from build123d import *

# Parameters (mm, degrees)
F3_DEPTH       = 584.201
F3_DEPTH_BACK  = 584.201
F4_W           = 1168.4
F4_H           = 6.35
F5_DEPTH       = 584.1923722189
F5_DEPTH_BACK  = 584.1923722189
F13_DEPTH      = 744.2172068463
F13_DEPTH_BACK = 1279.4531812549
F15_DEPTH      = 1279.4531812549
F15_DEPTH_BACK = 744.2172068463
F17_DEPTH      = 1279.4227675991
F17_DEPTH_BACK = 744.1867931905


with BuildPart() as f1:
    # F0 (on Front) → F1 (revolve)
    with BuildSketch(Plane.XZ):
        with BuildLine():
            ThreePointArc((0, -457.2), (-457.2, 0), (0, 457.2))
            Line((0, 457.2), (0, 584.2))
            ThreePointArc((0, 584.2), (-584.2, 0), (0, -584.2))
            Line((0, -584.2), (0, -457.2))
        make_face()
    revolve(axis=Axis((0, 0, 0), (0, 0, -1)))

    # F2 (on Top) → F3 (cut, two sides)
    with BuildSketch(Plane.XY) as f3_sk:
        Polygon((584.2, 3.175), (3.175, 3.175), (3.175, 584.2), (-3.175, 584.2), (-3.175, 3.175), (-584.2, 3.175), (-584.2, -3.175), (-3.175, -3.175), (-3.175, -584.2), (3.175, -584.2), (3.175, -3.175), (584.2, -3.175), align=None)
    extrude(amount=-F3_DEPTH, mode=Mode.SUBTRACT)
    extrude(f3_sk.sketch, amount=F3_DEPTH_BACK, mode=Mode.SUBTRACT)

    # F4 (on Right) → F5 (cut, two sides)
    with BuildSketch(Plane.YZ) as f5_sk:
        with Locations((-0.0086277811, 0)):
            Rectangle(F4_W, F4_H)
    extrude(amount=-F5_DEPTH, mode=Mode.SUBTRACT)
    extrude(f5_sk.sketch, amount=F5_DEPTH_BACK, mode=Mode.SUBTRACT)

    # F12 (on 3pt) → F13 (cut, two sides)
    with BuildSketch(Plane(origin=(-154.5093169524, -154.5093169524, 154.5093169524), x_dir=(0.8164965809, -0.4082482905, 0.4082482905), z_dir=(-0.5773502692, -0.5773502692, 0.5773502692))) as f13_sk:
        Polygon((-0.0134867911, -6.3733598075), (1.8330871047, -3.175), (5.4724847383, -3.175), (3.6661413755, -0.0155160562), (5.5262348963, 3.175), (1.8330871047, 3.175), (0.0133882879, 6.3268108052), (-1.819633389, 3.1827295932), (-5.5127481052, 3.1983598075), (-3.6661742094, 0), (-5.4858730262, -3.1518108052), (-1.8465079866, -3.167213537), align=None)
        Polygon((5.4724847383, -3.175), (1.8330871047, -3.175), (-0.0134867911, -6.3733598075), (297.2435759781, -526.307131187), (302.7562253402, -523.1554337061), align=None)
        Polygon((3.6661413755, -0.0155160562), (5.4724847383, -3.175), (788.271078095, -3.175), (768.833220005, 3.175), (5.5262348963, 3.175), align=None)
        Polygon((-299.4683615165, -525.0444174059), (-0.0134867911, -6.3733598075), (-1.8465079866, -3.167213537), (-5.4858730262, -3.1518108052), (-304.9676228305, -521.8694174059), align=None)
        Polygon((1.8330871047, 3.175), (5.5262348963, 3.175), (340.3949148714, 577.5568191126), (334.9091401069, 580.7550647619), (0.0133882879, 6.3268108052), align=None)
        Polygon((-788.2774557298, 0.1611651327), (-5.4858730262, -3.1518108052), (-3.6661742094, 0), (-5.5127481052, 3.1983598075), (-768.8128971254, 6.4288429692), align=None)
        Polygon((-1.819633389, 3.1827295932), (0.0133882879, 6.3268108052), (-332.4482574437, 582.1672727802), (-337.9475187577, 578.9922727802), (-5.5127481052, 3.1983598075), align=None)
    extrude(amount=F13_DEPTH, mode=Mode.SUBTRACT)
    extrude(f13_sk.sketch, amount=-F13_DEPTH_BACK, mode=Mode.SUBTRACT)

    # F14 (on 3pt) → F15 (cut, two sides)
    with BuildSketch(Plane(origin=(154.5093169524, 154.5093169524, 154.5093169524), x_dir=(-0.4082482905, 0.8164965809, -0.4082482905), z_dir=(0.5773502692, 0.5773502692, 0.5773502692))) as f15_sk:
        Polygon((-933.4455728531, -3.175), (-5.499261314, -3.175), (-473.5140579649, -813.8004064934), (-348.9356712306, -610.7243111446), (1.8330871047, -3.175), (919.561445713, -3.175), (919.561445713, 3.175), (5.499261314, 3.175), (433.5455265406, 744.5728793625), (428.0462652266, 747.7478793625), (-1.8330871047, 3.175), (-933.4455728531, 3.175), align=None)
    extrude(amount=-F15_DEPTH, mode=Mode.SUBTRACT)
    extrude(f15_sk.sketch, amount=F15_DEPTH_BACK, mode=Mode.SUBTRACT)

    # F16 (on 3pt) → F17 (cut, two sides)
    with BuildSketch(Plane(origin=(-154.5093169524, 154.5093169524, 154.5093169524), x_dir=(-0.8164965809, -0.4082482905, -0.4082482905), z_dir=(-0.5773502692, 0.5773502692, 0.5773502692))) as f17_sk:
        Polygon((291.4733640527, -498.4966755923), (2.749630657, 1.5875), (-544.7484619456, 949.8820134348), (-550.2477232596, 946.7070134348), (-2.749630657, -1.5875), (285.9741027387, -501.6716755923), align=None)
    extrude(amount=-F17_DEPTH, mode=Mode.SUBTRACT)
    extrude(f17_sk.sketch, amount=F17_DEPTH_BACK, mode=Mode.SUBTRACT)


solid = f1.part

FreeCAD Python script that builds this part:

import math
import FreeCAD as App
import Part
import Sketcher
Q = App.Units.Quantity

doc = App.newDocument("Part")
body = doc.addObject("PartDesign::Body", "Body")
body.AllowCompound = True

# Sketch on XZ plane
sketch1 = body.newObject("Sketcher::SketchObject", "Sketch")
sketch1.AttachmentSupport = (doc.getObject("XZ_Plane"), [""])
sketch1.MapMode = "FlatFace"
sketch1.addGeometry(Part.ArcOfCircle(Part.Circle(App.Vector(0, 0, 0), App.Vector(0, 0, 1), 457), math.radians(90), math.radians(270)), False)
sketch1.addGeometry(Part.LineSegment(App.Vector(0, 457, 0), App.Vector(0, 584, 0)), False)
sketch1.addGeometry(Part.ArcOfCircle(Part.Circle(App.Vector(0, 0, 0), App.Vector(0, 0, 1), 584), math.radians(90), math.radians(270)), False)
sketch1.addGeometry(Part.LineSegment(App.Vector(0, -584, 0), App.Vector(0, -457, 0)), False)
sketch1.addConstraint(Sketcher.Constraint("Coincident", 0, 1, 1, 1))
sketch1.addConstraint(Sketcher.Constraint("Coincident", 1, 2, 2, 1))
sketch1.addConstraint(Sketcher.Constraint("Coincident", 2, 2, 3, 1))
sketch1.addConstraint(Sketcher.Constraint("Coincident", 3, 2, 0, 2))
sketch1.addConstraint(Sketcher.Constraint("Vertical", 1))
sketch1.addConstraint(Sketcher.Constraint("Vertical", 3))
sketch1.addConstraint(Sketcher.Constraint("Coincident", 0, 3, -1, 1))
sketch1.addConstraint(Sketcher.Constraint("Coincident", 2, 3, -1, 1))
sketch1.addConstraint(Sketcher.Constraint("PointOnObject", 1, 2, -2))
sketch1.addConstraint(Sketcher.Constraint("PointOnObject", 3, 2, -2))
sketch1.addConstraint(Sketcher.Constraint("Radius", 0, Q("18 in")))
sketch1.addConstraint(Sketcher.Constraint("Radius", 2, Q("23 in")))
revolution = body.newObject("PartDesign::Revolution", "Revolution")
revolution.Profile = sketch1
revolution.ReferenceAxis = (sketch1, ["V_Axis"])
revolution.Angle = 360

# Sketch on XY plane
sketch2 = body.newObject("Sketcher::SketchObject", "Sketch001")
sketch2.AttachmentSupport = (doc.getObject("XY_Plane"), [""])
sketch2.MapMode = "FlatFace"
sketch2.addGeometry(Part.LineSegment(App.Vector(584, 3, 0), App.Vector(3, 3, 0)), False)
sketch2.addGeometry(Part.LineSegment(App.Vector(3, 3, 0), App.Vector(3, 584, 0)), False)
sketch2.addGeometry(Part.LineSegment(App.Vector(3, 584, 0), App.Vector(-3, 584, 0)), False)
sketch2.addGeometry(Part.LineSegment(App.Vector(-3, 584, 0), App.Vector(-3, 3, 0)), False)
sketch2.addGeometry(Part.LineSegment(App.Vector(-3, 3, 0), App.Vector(-584, 3, 0)), False)
sketch2.addGeometry(Part.LineSegment(App.Vector(-584, 3, 0), App.Vector(-584, -3, 0)), False)
sketch2.addGeometry(Part.LineSegment(App.Vector(-584, -3, 0), App.Vector(-3, -3, 0)), False)
sketch2.addGeometry(Part.LineSegment(App.Vector(-3, -3, 0), App.Vector(-3, -584, 0)), False)
sketch2.addGeometry(Part.LineSegment(App.Vector(-3, -584, 0), App.Vector(3, -584, 0)), False)
sketch2.addGeometry(Part.LineSegment(App.Vector(3, -584, 0), App.Vector(3, -3, 0)), False)
sketch2.addGeometry(Part.LineSegment(App.Vector(3, -3, 0), App.Vector(584, -3, 0)), False)
sketch2.addGeometry(Part.LineSegment(App.Vector(584, -3, 0), App.Vector(584, 3, 0)), False)
sketch2.addConstraint(Sketcher.Constraint("Coincident", 0, 2, 1, 1))
sketch2.addConstraint(Sketcher.Constraint("Coincident", 1, 2, 2, 1))
sketch2.addConstraint(Sketcher.Constraint("Coincident", 2, 2, 3, 1))
sketch2.addConstraint(Sketcher.Constraint("Coincident", 3, 2, 4, 1))
sketch2.addConstraint(Sketcher.Constraint("Coincident", 4, 2, 5, 1))
sketch2.addConstraint(Sketcher.Constraint("Coincident", 5, 2, 6, 1))
sketch2.addConstraint(Sketcher.Constraint("Coincident", 6, 2, 7, 1))
sketch2.addConstraint(Sketcher.Constraint("Coincident", 7, 2, 8, 1))
sketch2.addConstraint(Sketcher.Constraint("Coincident", 8, 2, 9, 1))
sketch2.addConstraint(Sketcher.Constraint("Coincident", 9, 2, 10, 1))
sketch2.addConstraint(Sketcher.Constraint("Coincident", 10, 2, 11, 1))
sketch2.addConstraint(Sketcher.Constraint("Coincident", 11, 2, 0, 1))
sketch2.addConstraint(Sketcher.Constraint("Horizontal", 0))
sketch2.addConstraint(Sketcher.Constraint("Vertical", 1))
sketch2.addConstraint(Sketcher.Constraint("Horizontal", 2))
sketch2.addConstraint(Sketcher.Constraint("Vertical", 3))
sketch2.addConstraint(Sketcher.Constraint("Horizontal", 4))
sketch2.addConstraint(Sketcher.Constraint("Vertical", 5))
sketch2.addConstraint(Sketcher.Constraint("Horizontal", 6))
sketch2.addConstraint(Sketcher.Constraint("Vertical", 7))
sketch2.addConstraint(Sketcher.Constraint("Horizontal", 8))
sketch2.addConstraint(Sketcher.Constraint("Vertical", 9))
sketch2.addConstraint(Sketcher.Constraint("Horizontal", 10))
sketch2.addConstraint(Sketcher.Constraint("Vertical", 11))
sketch2.addConstraint(Sketcher.Constraint("Symmetric", 0, 2, 6, 2, -1, 1))
sketch2.addConstraint(Sketcher.Constraint("Symmetric", 2, 2, 8, 2, -1, 1))
sketch2.addConstraint(Sketcher.Constraint("Symmetric", 4, 2, 10, 2, -1, 1))
sketch2.addConstraint(Sketcher.Constraint("Symmetric", 0, 2, 3, 2, -2))
sketch2.addConstraint(Sketcher.Constraint("Equal", 10, 1))
sketch2.addConstraint(Sketcher.Constraint("Equal", 8, 5))
sketch2.addConstraint(Sketcher.Constraint("DistanceY", -1, 1, 1, 2, Q("23 in")))
sketch2.addConstraint(Sketcher.Constraint("DistanceX", 2, 2, 2, 1, Q("0.25 in")))
pocket1 = body.newObject("PartDesign::Pocket", "Pocket")
pocket1.Profile = sketch2
pocket1.Type = "ThroughAll"
pocket1.Midplane = True

# Sketch on YZ plane
sketch3 = body.newObject("Sketcher::SketchObject", "Sketch002")
sketch3.AttachmentSupport = (doc.getObject("YZ_Plane"), [""])
sketch3.MapMode = "FlatFace"
sketch3.addGeometry(Part.LineSegment(App.Vector(-584, 3, 0), App.Vector(-584, -3, 0)), False)
sketch3.addGeometry(Part.LineSegment(App.Vector(-584, -3, 0), App.Vector(584, -3, 0)), False)
sketch3.addGeometry(Part.LineSegment(App.Vector(584, -3, 0), App.Vector(584, 3, 0)), False)
sketch3.addGeometry(Part.LineSegment(App.Vector(584, 3, 0), App.Vector(-584, 3, 0)), False)
sketch3.addConstraint(Sketcher.Constraint("Coincident", 0, 2, 1, 1))
sketch3.addConstraint(Sketcher.Constraint("Coincident", 1, 2, 2, 1))
sketch3.addConstraint(Sketcher.Constraint("Coincident", 2, 2, 3, 1))
sketch3.addConstraint(Sketcher.Constraint("Coincident", 3, 2, 0, 1))
sketch3.addConstraint(Sketcher.Constraint("Vertical", 0))
sketch3.addConstraint(Sketcher.Constraint("Horizontal", 1))
sketch3.addConstraint(Sketcher.Constraint("Vertical", 2))
sketch3.addConstraint(Sketcher.Constraint("Horizontal", 3))
sketch3.addConstraint(Sketcher.Constraint("DistanceX", 1, 1, 1, 2, Q("46 in")))
sketch3.addConstraint(Sketcher.Constraint("DistanceY", 0, 2, 0, 1, Q("0.25 in")))
sketch3.addConstraint(Sketcher.Constraint("DistanceY", 0, 2, -1, 1, Q("0.125 in")))
sketch3.addConstraint(Sketcher.Constraint("DistanceX", 0, 2, -1, 1, 584.208628))
pocket2 = body.newObject("PartDesign::Pocket", "Pocket001")
pocket2.Profile = sketch3
pocket2.Type = "ThroughAll"
pocket2.Midplane = True

# Sketch on an angled plane
sketch4 = body.newObject("Sketcher::SketchObject", "Sketch003")
sketch4.Placement = App.Placement(App.Vector(-154.509317, -154.509317, 154.509317), App.Rotation(App.Vector(0.816496581, -0.40824829, 0.40824829), App.Vector(0, 0.707106781, 0.707106781), App.Vector(-0.577350269, -0.577350269, 0.577350269), "ZXY"))
sketch4.addGeometry(Part.LineSegment(App.Vector(-5.512748, 3.19836, 0), App.Vector(-768.812897, 6.428843, 0)), False)
sketch4.addGeometry(Part.LineSegment(App.Vector(-768.812897, 6.428843, 0), App.Vector(-788.277455, 0.161165, 0)), False)
sketch4.addGeometry(Part.LineSegment(App.Vector(-788.277455, 0.161165, 0), App.Vector(-5.485873, -3.151811, 0)), False)
sketch4.addGeometry(Part.LineSegment(App.Vector(-5.485873, -3.151811, 0), App.Vector(-304.967623, -521.869417, 0)), False)
sketch4.addGeometry(Part.LineSegment(App.Vector(-304.967623, -521.869417, 0), App.Vector(-299.468361, -525.044417, 0)), False)
sketch4.addGeometry(Part.LineSegment(App.Vector(-299.468361, -525.044417, 0), App.Vector(-0.013487, -6.37336, 0)), False)
sketch4.addGeometry(Part.LineSegment(App.Vector(-0.013487, -6.37336, 0), App.Vector(297.243576, -526.307131, 0)), False)
sketch4.addGeometry(Part.LineSegment(App.Vector(297.243576, -526.307131, 0), App.Vector(302.756225, -523.155433, 0)), False)
sketch4.addGeometry(Part.LineSegment(App.Vector(302.756225, -523.155433, 0), App.Vector(5.472485, -3.175, 0)), False)
sketch4.addGeometry(Part.LineSegment(App.Vector(5.472485, -3.175, 0), App.Vector(788.271078, -3.175, 0)), False)
sketch4.addGeometry(Part.LineSegment(App.Vector(788.271078, -3.175, 0), App.Vector(768.83322, 3.175, 0)), False)
sketch4.addGeometry(Part.LineSegment(App.Vector(768.83322, 3.175, 0), App.Vector(5.526235, 3.175, 0)), False)
sketch4.addGeometry(Part.LineSegment(App.Vector(5.526235, 3.175, 0), App.Vector(340.394915, 577.556818, 0)), False)
sketch4.addGeometry(Part.LineSegment(App.Vector(340.394915, 577.556818, 0), App.Vector(334.90914, 580.755064, 0)), False)
sketch4.addGeometry(Part.LineSegment(App.Vector(334.90914, 580.755064, 0), App.Vector(0.013388, 6.326811, 0)), False)
sketch4.addGeometry(Part.LineSegment(App.Vector(0.013388, 6.326811, 0), App.Vector(-332.448257, 582.167272, 0)), False)
sketch4.addGeometry(Part.LineSegment(App.Vector(-332.448257, 582.167272, 0), App.Vector(-337.947519, 578.992272, 0)), False)
sketch4.addGeometry(Part.LineSegment(App.Vector(-337.947519, 578.992272, 0), App.Vector(-5.512748, 3.19836, 0)), False)
sketch4.addConstraint(Sketcher.Constraint("Coincident", 0, 2, 1, 1))
sketch4.addConstraint(Sketcher.Constraint("Coincident", 1, 2, 2, 1))
sketch4.addConstraint(Sketcher.Constraint("Coincident", 2, 2, 3, 1))
sketch4.addConstraint(Sketcher.Constraint("Coincident", 3, 2, 4, 1))
sketch4.addConstraint(Sketcher.Constraint("Coincident", 4, 2, 5, 1))
sketch4.addConstraint(Sketcher.Constraint("Coincident", 5, 2, 6, 1))
sketch4.addConstraint(Sketcher.Constraint("Coincident", 6, 2, 7, 1))
sketch4.addConstraint(Sketcher.Constraint("Coincident", 7, 2, 8, 1))
sketch4.addConstraint(Sketcher.Constraint("Coincident", 8, 2, 9, 1))
sketch4.addConstraint(Sketcher.Constraint("Coincident", 9, 2, 10, 1))
sketch4.addConstraint(Sketcher.Constraint("Coincident", 10, 2, 11, 1))
sketch4.addConstraint(Sketcher.Constraint("Coincident", 11, 2, 12, 1))
sketch4.addConstraint(Sketcher.Constraint("Coincident", 12, 2, 13, 1))
sketch4.addConstraint(Sketcher.Constraint("Coincident", 13, 2, 14, 1))
sketch4.addConstraint(Sketcher.Constraint("Coincident", 14, 2, 15, 1))
sketch4.addConstraint(Sketcher.Constraint("Coincident", 15, 2, 16, 1))
sketch4.addConstraint(Sketcher.Constraint("Coincident", 16, 2, 17, 1))
sketch4.addConstraint(Sketcher.Constraint("Coincident", 17, 2, 0, 1))
sketch4.addConstraint(Sketcher.Constraint("Horizontal", 9))
sketch4.addConstraint(Sketcher.Constraint("Horizontal", 11))
sketch4.addConstraint(Sketcher.Constraint("Distance", 4, Q("0.25 in")))
sketch4.addConstraint(Sketcher.Constraint("Distance", 7, Q("0.25 in")))
sketch4.addConstraint(Sketcher.Constraint("Distance", 13, Q("0.25 in")))
sketch4.addConstraint(Sketcher.Constraint("Distance", 16, Q("0.25 in")))
sketch4.addConstraint(Sketcher.Constraint("DistanceY", 9, 2, 10, 2, Q("0.25 in")))
sketch4.addConstraint(Sketcher.Constraint("DistanceY", 8, 2, -1, 1, Q("0.125 in")))
sketch4.addConstraint(Sketcher.Constraint("DistanceY", 4, 2, 3, 2, Q("0.125 in")))
sketch4.addConstraint(Sketcher.Constraint("DistanceY", 16, 2, 15, 2, Q("0.125 in")))
sketch4.addConstraint(Sketcher.Constraint("Distance", 3, 598.963499))
sketch4.addConstraint(Sketcher.Constraint("Distance", 8, 598.963499))
sketch4.addConstraint(Sketcher.Constraint("DistanceX", 3, 2, 6, 2, 602.211198))
sketch4.addConstraint(Sketcher.Constraint("DistanceX", 2, 2, 7, 2, 308.242098))
sketch4.addConstraint(Sketcher.Constraint("DistanceX", 6, 2, 9, 2, 491.027502))
sketch4.addConstraint(Sketcher.Constraint("DistanceX", 5, 2, 12, 2, 340.408401))
sketch4.addConstraint(Sketcher.Constraint("Distance", 5, 598.909749))
sketch4.addConstraint(Sketcher.Constraint("Distance", 6, 598.909749))
sketch4.addConstraint(Sketcher.Constraint("Distance", 12, 664.869541))
sketch4.addConstraint(Sketcher.Constraint("Distance", 14, 664.923291))
sketch4.addConstraint(Sketcher.Constraint("Distance", 15, 664.923291))
sketch4.addConstraint(Sketcher.Constraint("Distance", 17, 664.869541))
sketch4.addConstraint(Sketcher.Constraint("DistanceX", 9, 1, 9, 2, 782.798593))
sketch4.addConstraint(Sketcher.Constraint("DistanceX", 11, 2, 11, 1, 763.306985))
sketch4.addConstraint(Sketcher.Constraint("DistanceY", 2, 2, -1, 1, 3.151811))
sketch4.addConstraint(Sketcher.Constraint("DistanceX", 4, 2, -1, 1, 299.468361))
sketch4.addConstraint(Sketcher.Constraint("DistanceY", 5, 2, -1, 1, 6.37336))
sketch4.addConstraint(Sketcher.Constraint("DistanceX", -1, 1, 10, 2, 768.83322))
sketch4.addConstraint(Sketcher.Constraint("DistanceX", -1, 1, 13, 2, 334.90914))
sketch4.addConstraint(Sketcher.Constraint("DistanceX", -1, 1, 14, 2, 0.013388))
sketch4.addConstraint(Sketcher.Constraint("DistanceX", 16, 2, -1, 1, 337.947519))
sketch4.addConstraint(Sketcher.Constraint("DistanceX", 17, 2, -1, 1, 5.512748))
sketch4.addConstraint(Sketcher.Constraint("DistanceX", 1, 2, 0, 2, 19.464559))
sketch4.addConstraint(Sketcher.Constraint("DistanceY", 3, 2, 0, 2, 528.29826))
sketch4.addConstraint(Sketcher.Constraint("DistanceY", 3, 2, 1, 2, 522.030582))
sketch4.addConstraint(Sketcher.Constraint("DistanceX", 0, 2, 5, 2, 768.79941))
pocket3 = body.newObject("PartDesign::Pocket", "Pocket002")
pocket3.Profile = sketch4
pocket3.Type = "ThroughAll"
pocket3.Midplane = True

# Sketch on an angled plane
sketch5 = body.newObject("Sketcher::SketchObject", "Sketch004")
sketch5.Placement = App.Placement(App.Vector(154.509317, 154.509317, 154.509317), App.Rotation(App.Vector(-0.40824829, 0.816496581, -0.40824829), App.Vector(-0.707106781, 0, 0.707106781), App.Vector(0.577350269, 0.577350269, 0.577350269), "ZXY"))
sketch5.addGeometry(Part.LineSegment(App.Vector(-933, -3, 0), App.Vector(-5, -3, 0)), False)
sketch5.addGeometry(Part.LineSegment(App.Vector(-5, -3, 0), App.Vector(-474, -814, 0)), False)
sketch5.addGeometry(Part.LineSegment(App.Vector(-474, -814, 0), App.Vector(-349, -611, 0)), False)
sketch5.addGeometry(Part.LineSegment(App.Vector(-349, -611, 0), App.Vector(2, -3, 0)), False)
sketch5.addGeometry(Part.LineSegment(App.Vector(2, -3, 0), App.Vector(920, -3, 0)), False)
sketch5.addGeometry(Part.LineSegment(App.Vector(920, -3, 0), App.Vector(920, 3, 0)), False)
sketch5.addGeometry(Part.LineSegment(App.Vector(920, 3, 0), App.Vector(5, 3, 0)), False)
sketch5.addGeometry(Part.LineSegment(App.Vector(5, 3, 0), App.Vector(434, 745, 0)), False)
sketch5.addGeometry(Part.LineSegment(App.Vector(434, 745, 0), App.Vector(428, 748, 0)), False)
sketch5.addGeometry(Part.LineSegment(App.Vector(428, 748, 0), App.Vector(-2, 3, 0)), False)
sketch5.addGeometry(Part.LineSegment(App.Vector(-2, 3, 0), App.Vector(-933, 3, 0)), False)
sketch5.addGeometry(Part.LineSegment(App.Vector(-933, 3, 0), App.Vector(-933, -3, 0)), False)
sketch5.addConstraint(Sketcher.Constraint("Coincident", 0, 2, 1, 1))
sketch5.addConstraint(Sketcher.Constraint("Coincident", 1, 2, 2, 1))
sketch5.addConstraint(Sketcher.Constraint("Coincident", 2, 2, 3, 1))
sketch5.addConstraint(Sketcher.Constraint("Coincident", 3, 2, 4, 1))
sketch5.addConstraint(Sketcher.Constraint("Coincident", 4, 2, 5, 1))
sketch5.addConstraint(Sketcher.Constraint("Coincident", 5, 2, 6, 1))
sketch5.addConstraint(Sketcher.Constraint("Coincident", 6, 2, 7, 1))
sketch5.addConstraint(Sketcher.Constraint("Coincident", 7, 2, 8, 1))
sketch5.addConstraint(Sketcher.Constraint("Coincident", 8, 2, 9, 1))
sketch5.addConstraint(Sketcher.Constraint("Coincident", 9, 2, 10, 1))
sketch5.addConstraint(Sketcher.Constraint("Coincident", 10, 2, 11, 1))
sketch5.addConstraint(Sketcher.Constraint("Coincident", 11, 2, 0, 1))
sketch5.addConstraint(Sketcher.Constraint("Horizontal", 0))
sketch5.addConstraint(Sketcher.Constraint("Horizontal", 4))
sketch5.addConstraint(Sketcher.Constraint("Vertical", 5))
sketch5.addConstraint(Sketcher.Constraint("Horizontal", 6))
sketch5.addConstraint(Sketcher.Constraint("Horizontal", 10))
sketch5.addConstraint(Sketcher.Constraint("Vertical", 11))
sketch5.addConstraint(Sketcher.Constraint("Symmetric", 0, 2, 6, 2, -1, 1))
sketch5.addConstraint(Sketcher.Constraint("Symmetric", 3, 2, 9, 2, -1, 1))
sketch5.addConstraint(Sketcher.Constraint("Parallel", 1, 3))
sketch5.addConstraint(Sketcher.Constraint("Parallel", 3, 7))
sketch5.addConstraint(Sketcher.Constraint("Perpendicular", 7, 8))
sketch5.addConstraint(Sketcher.Constraint("Perpendicular", 8, 9))
sketch5.addConstraint(Sketcher.Constraint("Horizontal", 0, 2, 3, 2))
sketch5.addConstraint(Sketcher.Constraint("Angle", 1, Q("-120 deg")))
sketch5.addConstraint(Sketcher.Constraint("DistanceY", 5, 1, 5, 2, Q("0.25 in")))
sketch5.addConstraint(Sketcher.Constraint("Distance", 8, Q("0.25 in")))
sketch5.addConstraint(Sketcher.Constraint("DistanceX", 6, 2, 6, 1, Q("35.9867002 in")))
sketch5.addConstraint(Sketcher.Constraint("DistanceX", 0, 1, 0, 2, 927.946311))
sketch5.addConstraint(Sketcher.Constraint("DistanceX", 4, 1, 4, 2, 917.728358))
sketch5.addConstraint(Sketcher.Constraint("DistanceX", 10, 2, 2, 2, 584.509901))
sketch5.addConstraint(Sketcher.Constraint("Distance", 2, 238.24289))
sketch5.addConstraint(Sketcher.Constraint("Distance", 7, 856.092529))
pocket4 = body.newObject("PartDesign::Pocket", "Pocket003")
pocket4.Profile = sketch5
pocket4.Type = "ThroughAll"
pocket4.Midplane = True

# Sketch on an angled plane
sketch6 = body.newObject("Sketcher::SketchObject", "Sketch005")
sketch6.Placement = App.Placement(App.Vector(-154.509317, 154.509317, 154.509317), App.Rotation(App.Vector(-0.816496581, -0.40824829, -0.40824829), App.Vector(0, -0.707106781, 0.707106781), App.Vector(-0.577350269, 0.577350269, 0.577350269), "ZXY"))
sketch6.addGeometry(Part.LineSegment(App.Vector(291, -498, 0), App.Vector(-545, 950, 0)), False)
sketch6.addGeometry(Part.LineSegment(App.Vector(-545, 950, 0), App.Vector(-550, 947, 0)), False)
sketch6.addGeometry(Part.LineSegment(App.Vector(-550, 947, 0), App.Vector(286, -502, 0)), False)
sketch6.addGeometry(Part.LineSegment(App.Vector(286, -502, 0), App.Vector(291, -498, 0)), False)
sketch6.addConstraint(Sketcher.Constraint("Coincident", 0, 2, 1, 1))
sketch6.addConstraint(Sketcher.Constraint("Coincident", 1, 2, 2, 1))
sketch6.addConstraint(Sketcher.Constraint("Coincident", 2, 2, 3, 1))
sketch6.addConstraint(Sketcher.Constraint("Coincident", 3, 2, 0, 1))
sketch6.addConstraint(Sketcher.Constraint("Perpendicular", 0, 1))
sketch6.addConstraint(Sketcher.Constraint("Perpendicular", 1, 2))
sketch6.addConstraint(Sketcher.Constraint("Perpendicular", 2, 3))
sketch6.addConstraint(Sketcher.Constraint("Angle", 0, Q("120 deg")))
sketch6.addConstraint(Sketcher.Constraint("Distance", 1, Q("0.25 in")))
sketch6.addConstraint(Sketcher.Constraint("Distance", 0, 1672.44365))
sketch6.addConstraint(Sketcher.Constraint("DistanceX", 0, 2, -1, 1, 544.748462))
sketch6.addConstraint(Sketcher.Constraint("DistanceY", -1, 1, 0, 2, 949.882012))
pocket5 = body.newObject("PartDesign::Pocket", "Pocket004")
pocket5.Profile = sketch6
pocket5.Type = "ThroughAll"
pocket5.Midplane = True

doc.recompute()
